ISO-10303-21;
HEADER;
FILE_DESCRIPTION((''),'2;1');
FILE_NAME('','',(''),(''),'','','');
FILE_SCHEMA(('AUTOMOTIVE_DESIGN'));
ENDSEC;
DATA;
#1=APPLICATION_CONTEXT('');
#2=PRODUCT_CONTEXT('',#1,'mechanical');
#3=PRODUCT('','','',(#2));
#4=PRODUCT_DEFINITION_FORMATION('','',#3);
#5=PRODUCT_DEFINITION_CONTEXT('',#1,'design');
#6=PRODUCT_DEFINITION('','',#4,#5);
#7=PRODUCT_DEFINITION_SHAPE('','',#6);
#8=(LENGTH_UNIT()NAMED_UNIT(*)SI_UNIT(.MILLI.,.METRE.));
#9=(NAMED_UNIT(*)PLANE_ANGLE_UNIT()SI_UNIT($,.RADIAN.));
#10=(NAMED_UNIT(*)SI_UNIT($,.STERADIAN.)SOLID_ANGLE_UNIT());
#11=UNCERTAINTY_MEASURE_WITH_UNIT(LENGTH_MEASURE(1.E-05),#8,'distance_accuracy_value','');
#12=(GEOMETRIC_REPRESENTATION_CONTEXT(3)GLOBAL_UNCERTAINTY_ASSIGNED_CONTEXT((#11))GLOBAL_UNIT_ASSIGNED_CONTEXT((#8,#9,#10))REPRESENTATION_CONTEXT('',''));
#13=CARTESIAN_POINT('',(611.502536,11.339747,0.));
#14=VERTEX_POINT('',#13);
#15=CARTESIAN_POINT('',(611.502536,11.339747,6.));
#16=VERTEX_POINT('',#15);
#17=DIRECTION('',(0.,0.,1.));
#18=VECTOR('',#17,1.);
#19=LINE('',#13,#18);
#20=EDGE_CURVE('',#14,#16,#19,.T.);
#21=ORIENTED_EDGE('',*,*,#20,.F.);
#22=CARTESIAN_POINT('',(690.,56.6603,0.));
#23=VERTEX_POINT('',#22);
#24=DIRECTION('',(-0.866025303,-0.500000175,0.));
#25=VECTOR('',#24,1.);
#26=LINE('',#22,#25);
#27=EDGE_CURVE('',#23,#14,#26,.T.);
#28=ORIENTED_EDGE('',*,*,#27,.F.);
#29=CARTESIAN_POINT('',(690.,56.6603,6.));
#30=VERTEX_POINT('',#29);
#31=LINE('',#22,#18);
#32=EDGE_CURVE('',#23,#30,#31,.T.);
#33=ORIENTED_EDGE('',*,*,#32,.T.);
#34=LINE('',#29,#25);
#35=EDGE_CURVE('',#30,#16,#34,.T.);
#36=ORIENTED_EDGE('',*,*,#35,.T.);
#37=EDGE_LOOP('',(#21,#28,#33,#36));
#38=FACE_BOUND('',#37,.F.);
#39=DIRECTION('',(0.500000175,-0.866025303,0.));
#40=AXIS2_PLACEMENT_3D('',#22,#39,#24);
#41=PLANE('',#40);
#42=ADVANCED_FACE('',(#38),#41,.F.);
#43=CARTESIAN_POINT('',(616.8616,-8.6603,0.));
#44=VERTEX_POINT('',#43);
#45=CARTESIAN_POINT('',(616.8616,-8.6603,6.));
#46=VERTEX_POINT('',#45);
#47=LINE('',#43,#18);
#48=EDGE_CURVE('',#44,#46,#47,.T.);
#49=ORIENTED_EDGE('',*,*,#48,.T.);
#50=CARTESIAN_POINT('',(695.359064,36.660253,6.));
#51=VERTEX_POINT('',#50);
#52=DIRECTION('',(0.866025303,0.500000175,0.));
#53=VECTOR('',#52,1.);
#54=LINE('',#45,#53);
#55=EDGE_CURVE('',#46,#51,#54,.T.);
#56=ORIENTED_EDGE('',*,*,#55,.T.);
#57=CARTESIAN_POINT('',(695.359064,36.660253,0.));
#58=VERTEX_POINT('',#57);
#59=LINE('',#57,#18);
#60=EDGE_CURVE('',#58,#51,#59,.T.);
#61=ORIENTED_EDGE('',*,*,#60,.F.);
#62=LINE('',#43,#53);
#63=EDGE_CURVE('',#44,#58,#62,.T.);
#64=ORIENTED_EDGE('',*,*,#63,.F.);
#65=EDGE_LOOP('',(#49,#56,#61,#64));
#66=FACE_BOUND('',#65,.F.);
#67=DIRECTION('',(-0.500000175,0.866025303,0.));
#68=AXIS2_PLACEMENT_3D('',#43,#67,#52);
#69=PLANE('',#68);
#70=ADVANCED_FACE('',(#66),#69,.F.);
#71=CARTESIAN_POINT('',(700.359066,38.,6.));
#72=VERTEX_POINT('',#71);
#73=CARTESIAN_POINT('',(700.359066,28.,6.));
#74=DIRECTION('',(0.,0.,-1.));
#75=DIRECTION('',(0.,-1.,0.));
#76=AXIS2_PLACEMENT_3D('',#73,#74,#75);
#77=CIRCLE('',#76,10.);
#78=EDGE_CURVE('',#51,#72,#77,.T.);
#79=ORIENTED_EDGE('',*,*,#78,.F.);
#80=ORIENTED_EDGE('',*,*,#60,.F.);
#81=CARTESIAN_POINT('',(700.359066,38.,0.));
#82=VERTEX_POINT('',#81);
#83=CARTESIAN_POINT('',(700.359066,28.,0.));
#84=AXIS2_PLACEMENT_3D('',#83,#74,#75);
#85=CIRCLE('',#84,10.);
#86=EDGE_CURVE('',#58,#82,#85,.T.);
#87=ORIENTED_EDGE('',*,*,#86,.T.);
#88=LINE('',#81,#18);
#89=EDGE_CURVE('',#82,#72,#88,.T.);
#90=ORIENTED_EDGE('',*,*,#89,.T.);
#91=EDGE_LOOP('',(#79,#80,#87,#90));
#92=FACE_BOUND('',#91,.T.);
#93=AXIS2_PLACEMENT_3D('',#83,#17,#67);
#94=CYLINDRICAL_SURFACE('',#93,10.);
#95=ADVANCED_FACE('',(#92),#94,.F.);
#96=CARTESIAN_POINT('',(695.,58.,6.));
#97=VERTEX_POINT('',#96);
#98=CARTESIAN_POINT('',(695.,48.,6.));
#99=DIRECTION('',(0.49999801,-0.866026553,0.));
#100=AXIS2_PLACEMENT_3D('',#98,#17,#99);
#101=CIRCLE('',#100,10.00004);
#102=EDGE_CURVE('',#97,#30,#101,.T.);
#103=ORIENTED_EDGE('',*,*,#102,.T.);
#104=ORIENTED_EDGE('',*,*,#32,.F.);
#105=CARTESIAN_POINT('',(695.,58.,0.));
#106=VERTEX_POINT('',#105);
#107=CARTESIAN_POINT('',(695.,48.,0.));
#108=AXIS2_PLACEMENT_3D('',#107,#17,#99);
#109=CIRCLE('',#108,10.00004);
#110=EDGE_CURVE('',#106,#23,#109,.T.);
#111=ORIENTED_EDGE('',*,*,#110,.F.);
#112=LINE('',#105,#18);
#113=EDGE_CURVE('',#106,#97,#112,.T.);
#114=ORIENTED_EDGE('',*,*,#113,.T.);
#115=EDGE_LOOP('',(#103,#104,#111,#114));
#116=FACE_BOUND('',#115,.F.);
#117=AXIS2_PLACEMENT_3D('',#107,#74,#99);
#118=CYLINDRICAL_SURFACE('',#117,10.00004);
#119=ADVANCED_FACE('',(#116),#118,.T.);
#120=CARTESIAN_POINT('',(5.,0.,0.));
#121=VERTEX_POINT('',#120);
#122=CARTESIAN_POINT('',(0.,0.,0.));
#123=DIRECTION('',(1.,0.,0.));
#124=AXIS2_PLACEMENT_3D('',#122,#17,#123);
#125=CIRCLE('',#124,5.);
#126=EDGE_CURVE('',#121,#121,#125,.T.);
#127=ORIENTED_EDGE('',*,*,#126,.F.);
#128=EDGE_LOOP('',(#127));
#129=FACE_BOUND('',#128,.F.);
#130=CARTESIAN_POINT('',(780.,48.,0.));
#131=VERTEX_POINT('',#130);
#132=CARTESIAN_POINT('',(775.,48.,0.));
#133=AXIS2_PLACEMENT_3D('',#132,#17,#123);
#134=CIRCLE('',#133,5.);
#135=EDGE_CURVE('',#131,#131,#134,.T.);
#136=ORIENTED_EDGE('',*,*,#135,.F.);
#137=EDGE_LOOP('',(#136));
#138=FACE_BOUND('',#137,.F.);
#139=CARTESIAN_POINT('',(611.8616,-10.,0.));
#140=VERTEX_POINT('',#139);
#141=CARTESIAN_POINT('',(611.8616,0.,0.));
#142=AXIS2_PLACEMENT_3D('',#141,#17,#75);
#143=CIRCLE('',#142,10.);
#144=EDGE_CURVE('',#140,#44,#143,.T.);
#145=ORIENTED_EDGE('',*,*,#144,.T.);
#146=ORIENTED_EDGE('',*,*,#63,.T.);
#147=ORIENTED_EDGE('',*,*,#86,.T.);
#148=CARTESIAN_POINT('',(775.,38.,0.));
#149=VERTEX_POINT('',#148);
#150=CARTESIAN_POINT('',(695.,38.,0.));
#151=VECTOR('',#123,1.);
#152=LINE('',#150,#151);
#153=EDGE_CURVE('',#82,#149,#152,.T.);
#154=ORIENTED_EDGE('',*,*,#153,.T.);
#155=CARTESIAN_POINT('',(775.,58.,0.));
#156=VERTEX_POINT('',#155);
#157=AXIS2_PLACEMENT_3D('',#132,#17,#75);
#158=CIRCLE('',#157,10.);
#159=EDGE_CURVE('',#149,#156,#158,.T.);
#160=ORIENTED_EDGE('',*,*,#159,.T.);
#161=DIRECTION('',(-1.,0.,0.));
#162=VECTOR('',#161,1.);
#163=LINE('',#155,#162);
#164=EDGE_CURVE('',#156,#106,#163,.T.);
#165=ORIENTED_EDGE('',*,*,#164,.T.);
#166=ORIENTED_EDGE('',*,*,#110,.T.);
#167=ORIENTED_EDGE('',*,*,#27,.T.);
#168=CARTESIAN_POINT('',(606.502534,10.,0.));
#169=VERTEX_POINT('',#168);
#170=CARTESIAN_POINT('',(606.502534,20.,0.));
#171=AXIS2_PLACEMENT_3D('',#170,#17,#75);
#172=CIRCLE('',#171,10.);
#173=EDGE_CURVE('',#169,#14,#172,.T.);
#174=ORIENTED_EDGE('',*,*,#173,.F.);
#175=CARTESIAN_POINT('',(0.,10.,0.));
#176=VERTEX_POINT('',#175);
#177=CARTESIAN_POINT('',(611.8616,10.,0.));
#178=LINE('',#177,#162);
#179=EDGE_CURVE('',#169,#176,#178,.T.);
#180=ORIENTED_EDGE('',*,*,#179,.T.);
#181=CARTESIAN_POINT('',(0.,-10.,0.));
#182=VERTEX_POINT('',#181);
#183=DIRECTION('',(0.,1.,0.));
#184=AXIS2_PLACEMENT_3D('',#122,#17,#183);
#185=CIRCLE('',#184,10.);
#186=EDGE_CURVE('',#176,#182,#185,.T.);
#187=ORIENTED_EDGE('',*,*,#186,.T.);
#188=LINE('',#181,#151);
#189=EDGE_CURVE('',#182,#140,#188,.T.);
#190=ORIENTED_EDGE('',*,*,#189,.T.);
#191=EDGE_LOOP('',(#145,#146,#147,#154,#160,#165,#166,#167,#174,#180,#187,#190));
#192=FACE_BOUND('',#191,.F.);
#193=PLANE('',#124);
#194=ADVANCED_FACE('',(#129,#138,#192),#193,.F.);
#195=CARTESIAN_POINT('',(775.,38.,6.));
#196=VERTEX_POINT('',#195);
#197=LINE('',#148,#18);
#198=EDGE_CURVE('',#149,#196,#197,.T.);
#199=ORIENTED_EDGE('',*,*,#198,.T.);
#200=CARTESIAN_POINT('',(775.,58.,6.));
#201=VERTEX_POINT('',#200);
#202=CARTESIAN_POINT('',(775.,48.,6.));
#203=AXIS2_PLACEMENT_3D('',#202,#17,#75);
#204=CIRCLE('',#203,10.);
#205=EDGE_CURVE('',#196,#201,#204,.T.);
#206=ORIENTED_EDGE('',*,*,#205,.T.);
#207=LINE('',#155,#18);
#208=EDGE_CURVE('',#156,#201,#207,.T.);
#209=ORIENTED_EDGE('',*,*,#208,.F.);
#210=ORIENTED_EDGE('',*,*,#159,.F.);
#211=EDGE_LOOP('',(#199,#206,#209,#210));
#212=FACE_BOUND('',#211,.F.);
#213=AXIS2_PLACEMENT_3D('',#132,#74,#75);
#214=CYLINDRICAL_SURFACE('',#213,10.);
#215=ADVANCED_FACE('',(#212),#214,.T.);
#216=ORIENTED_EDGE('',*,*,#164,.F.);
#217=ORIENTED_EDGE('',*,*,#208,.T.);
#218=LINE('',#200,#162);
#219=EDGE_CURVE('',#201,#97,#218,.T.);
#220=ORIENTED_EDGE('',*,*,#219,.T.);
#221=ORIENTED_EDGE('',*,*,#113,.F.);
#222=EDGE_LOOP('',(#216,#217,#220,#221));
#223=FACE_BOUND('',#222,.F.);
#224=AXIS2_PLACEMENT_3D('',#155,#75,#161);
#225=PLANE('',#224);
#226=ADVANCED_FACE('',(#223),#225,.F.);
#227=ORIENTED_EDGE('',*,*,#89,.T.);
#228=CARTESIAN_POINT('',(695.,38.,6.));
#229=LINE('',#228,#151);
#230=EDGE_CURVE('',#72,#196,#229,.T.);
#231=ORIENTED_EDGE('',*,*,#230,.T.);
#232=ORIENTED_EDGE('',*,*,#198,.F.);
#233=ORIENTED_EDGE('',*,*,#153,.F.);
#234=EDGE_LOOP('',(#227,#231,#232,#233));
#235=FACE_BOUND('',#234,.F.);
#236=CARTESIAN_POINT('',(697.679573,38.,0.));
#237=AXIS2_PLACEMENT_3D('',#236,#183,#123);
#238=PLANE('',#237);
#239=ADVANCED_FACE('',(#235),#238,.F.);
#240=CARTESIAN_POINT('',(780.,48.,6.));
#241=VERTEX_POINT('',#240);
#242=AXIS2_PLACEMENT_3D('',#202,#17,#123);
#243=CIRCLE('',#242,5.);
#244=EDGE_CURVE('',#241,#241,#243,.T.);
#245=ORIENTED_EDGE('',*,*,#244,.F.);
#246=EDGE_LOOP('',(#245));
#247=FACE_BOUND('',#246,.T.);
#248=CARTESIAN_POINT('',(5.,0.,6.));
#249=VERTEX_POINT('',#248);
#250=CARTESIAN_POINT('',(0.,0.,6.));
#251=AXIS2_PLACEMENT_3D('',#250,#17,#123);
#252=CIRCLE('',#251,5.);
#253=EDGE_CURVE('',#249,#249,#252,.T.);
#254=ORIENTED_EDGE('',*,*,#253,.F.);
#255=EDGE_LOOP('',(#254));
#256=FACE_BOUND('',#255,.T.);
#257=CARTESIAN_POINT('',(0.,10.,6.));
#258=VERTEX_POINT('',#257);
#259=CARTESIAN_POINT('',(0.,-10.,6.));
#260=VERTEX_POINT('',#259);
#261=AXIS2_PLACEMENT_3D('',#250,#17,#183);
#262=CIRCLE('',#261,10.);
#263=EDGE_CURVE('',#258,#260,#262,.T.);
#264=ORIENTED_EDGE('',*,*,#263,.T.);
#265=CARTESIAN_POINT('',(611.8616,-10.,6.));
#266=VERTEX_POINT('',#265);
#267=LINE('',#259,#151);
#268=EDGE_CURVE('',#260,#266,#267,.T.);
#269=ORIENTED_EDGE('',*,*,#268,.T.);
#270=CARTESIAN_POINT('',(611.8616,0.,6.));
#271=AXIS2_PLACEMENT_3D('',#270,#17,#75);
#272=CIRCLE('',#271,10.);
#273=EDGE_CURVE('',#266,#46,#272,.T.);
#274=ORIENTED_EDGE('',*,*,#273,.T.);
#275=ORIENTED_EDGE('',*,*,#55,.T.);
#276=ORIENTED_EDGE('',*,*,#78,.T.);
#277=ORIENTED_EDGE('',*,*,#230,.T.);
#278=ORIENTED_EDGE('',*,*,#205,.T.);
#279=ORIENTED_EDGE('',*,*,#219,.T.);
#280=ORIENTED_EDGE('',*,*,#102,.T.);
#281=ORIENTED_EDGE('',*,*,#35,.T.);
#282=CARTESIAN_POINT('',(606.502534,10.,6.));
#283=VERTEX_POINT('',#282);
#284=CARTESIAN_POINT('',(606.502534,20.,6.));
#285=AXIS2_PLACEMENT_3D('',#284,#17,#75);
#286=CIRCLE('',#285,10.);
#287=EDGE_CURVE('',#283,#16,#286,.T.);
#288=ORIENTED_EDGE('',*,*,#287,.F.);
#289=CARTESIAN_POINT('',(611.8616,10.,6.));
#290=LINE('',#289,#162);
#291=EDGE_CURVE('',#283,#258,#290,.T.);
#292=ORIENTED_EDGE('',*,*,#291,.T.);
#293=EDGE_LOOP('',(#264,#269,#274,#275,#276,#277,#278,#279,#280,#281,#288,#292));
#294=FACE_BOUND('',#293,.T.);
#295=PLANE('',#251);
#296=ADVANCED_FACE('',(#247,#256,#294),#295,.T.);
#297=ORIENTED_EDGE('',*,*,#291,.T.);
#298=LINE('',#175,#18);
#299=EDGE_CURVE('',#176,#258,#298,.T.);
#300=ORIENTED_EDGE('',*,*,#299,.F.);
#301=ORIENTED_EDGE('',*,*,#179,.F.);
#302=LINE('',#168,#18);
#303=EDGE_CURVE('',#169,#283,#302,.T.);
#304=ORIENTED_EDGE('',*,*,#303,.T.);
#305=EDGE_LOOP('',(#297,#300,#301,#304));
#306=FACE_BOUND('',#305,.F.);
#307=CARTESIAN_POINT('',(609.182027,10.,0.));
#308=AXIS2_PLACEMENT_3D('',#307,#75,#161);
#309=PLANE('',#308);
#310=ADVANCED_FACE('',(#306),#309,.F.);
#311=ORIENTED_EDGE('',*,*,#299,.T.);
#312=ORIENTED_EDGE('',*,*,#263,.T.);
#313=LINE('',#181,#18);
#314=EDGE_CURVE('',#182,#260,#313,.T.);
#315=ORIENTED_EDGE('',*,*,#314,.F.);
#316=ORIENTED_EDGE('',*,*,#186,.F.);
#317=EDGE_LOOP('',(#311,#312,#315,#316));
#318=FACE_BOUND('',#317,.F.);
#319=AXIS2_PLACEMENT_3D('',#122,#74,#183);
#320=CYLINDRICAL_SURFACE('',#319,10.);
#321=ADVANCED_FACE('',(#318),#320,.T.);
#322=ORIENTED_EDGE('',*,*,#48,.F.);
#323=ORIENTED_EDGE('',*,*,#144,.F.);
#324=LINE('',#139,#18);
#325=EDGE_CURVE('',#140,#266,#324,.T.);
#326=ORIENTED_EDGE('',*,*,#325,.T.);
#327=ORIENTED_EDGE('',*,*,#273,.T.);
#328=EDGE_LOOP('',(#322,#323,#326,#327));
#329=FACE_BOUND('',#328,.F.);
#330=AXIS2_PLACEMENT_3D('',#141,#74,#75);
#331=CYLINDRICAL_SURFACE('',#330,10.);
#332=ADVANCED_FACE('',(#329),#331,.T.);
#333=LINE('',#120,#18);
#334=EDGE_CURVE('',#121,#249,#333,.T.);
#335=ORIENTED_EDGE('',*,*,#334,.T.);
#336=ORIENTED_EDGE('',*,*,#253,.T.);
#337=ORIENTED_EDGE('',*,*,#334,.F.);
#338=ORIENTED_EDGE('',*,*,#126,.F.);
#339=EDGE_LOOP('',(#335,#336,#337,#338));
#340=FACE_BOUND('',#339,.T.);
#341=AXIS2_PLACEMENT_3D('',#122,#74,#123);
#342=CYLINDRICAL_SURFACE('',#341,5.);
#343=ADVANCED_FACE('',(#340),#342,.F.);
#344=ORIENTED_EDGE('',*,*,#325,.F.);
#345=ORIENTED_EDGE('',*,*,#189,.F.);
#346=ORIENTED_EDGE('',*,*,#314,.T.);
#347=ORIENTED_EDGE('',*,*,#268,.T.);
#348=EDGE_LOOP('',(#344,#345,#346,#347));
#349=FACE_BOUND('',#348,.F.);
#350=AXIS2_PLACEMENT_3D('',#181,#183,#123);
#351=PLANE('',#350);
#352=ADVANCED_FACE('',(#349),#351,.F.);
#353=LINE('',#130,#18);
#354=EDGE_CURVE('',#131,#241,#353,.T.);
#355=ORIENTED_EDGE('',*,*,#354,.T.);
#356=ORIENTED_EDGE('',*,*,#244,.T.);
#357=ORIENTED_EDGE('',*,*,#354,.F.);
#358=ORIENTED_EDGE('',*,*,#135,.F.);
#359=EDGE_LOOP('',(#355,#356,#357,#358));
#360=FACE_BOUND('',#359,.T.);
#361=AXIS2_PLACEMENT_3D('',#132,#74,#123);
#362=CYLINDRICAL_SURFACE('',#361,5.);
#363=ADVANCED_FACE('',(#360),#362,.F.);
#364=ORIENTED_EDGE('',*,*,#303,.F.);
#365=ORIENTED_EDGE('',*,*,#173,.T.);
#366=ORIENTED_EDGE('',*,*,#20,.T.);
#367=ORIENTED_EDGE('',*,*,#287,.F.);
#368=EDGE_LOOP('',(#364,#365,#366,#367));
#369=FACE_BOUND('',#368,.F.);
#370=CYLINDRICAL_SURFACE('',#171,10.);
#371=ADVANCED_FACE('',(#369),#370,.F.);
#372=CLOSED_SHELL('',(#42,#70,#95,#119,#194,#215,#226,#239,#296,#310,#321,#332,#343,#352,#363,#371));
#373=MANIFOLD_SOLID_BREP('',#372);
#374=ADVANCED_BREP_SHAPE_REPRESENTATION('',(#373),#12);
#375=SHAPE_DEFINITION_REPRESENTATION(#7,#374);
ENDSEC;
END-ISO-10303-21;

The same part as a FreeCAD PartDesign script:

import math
import FreeCAD as App
import Part
import Sketcher
from FreeCAD import Vector
Q = App.Units.Quantity


def edges_at(feature, points):
    """Names of the edges that pass closest to the given points."""
    edges = feature.Shape.Edges
    near = lambda p: min(range(len(edges)), key=lambda i: edges[i].distToShape(Part.Vertex(*p))[0])
    return sorted({f"Edge{near(p) + 1}" for p in points})

doc = App.newDocument("Part")
params = doc.addObject("Spreadsheet::Sheet", "Params")
for row, (alias, value) in enumerate([
    ("sketch1_diameter", "10 mm"),
    ("sketch1_radius", "10 mm"),
    ("sketch1_width", "80 mm"),
    ("pad1_length", "6 mm"),
    ("fillet_radius", "10 mm"),
], start=1):
    params.set(f"A{row}", alias)
    params.set(f"B{row}", "=" + value)
    params.setAlias(f"B{row}", alias)

body = doc.addObject("PartDesign::Body", "Body")

sketch1 = body.newObject("Sketcher::SketchObject", "Sketch")
sketch1.AttachmentSupport = (doc.getObject("XY_Plane"), [""])
sketch1.MapMode = "FlatFace"
sketch1.addGeometry([
    Part.ArcOfCircle(Part.Circle(Vector(0, 0, 0), Vector(0, 0, 1), 10), math.radians(90), math.radians(270)),
    Part.LineSegment(Vector(0, -10, 0), Vector(612, -10, 0)),
    Part.ArcOfCircle(Part.Circle(Vector(612, 0, 0), Vector(0, 0, 1), 10), math.radians(-90), math.radians(-60)),
    Part.LineSegment(Vector(617, -9, 0), Vector(698, 38, 0)),
    Part.LineSegment(Vector(698, 38, 0), Vector(775, 38, 0)),
    Part.ArcOfCircle(Part.Circle(Vector(775, 48, 0), Vector(0, 0, 1), 10), math.radians(-90), math.radians(90)),
    Part.LineSegment(Vector(775, 58, 0), Vector(695, 58, 0)),
    Part.ArcOfCircle(Part.Circle(Vector(695, 48, 0), Vector(0, 0, 1), 10), math.radians(90), math.radians(120)),
    Part.LineSegment(Vector(690, 57, 0), Vector(609, 10, 0)),
    Part.LineSegment(Vector(609, 10, 0), Vector(0, 10, 0)),
    Part.Circle(Vector(0, 0, 0), Vector(0, 0, 1), 5),
    Part.Circle(Vector(775, 48, 0), Vector(0, 0, 1), 5),
], False)
sketch1.addConstraint([
    Sketcher.Constraint("Tangent", 0, 2, 1, 1),
    Sketcher.Constraint("Tangent", 1, 2, 2, 1),
    Sketcher.Constraint("Tangent", 2, 2, 3, 1),
    Sketcher.Constraint("Coincident", 3, 2, 4, 1),
    Sketcher.Constraint("Tangent", 4, 2, 5, 1),
    Sketcher.Constraint("Tangent", 5, 2, 6, 1),
    Sketcher.Constraint("Tangent", 6, 2, 7, 1),
    Sketcher.Constraint("Tangent", 7, 2, 8, 1),
    Sketcher.Constraint("Coincident", 8, 2, 9, 1),
    Sketcher.Constraint("Tangent", 9, 2, 0, 1),
    Sketcher.Constraint("Horizontal", 1),
    Sketcher.Constraint("Horizontal", 4),
    Sketcher.Constraint("Horizontal", 6),
    Sketcher.Constraint("Horizontal", 9),
    Sketcher.Constraint("Coincident", 0, 3, -1, 1),
    Sketcher.Constraint("Coincident", 10, 3, -1, 1),
    Sketcher.Constraint("Coincident", 11, 3, 5, 3),
    Sketcher.Constraint("Equal", 0, 2),
    Sketcher.Constraint("Equal", 2, 5),
    Sketcher.Constraint("Equal", 5, 7),
    Sketcher.Constraint("Equal", 10, 11),
    Sketcher.Constraint("Parallel", 3, 8),
    Sketcher.Constraint("Diameter", 10, Q("10 mm")),
    Sketcher.Constraint("Radius", 0, Q("10 mm")),
    Sketcher.Constraint("DistanceX", 6, 2, 6, 1, Q("80 mm")),
    Sketcher.Constraint("Angle", 3, Q("30 deg")),
    Sketcher.Constraint("DistanceX", -1, 1, 5, 3, Q("775 mm")),
    Sketcher.Constraint("DistanceY", -1, 1, 5, 3, Q("48 mm")),
    Sketcher.Constraint("DistanceX", 1, 1, 1, 2, Q("611.8616 mm")),
])
sketch1.setExpression("Constraints[22]", "Params.sketch1_diameter")
sketch1.setExpression("Constraints[23]", "Params.sketch1_radius")
sketch1.setExpression("Constraints[24]", "Params.sketch1_width")
pad1 = body.newObject("PartDesign::Pad", "Pad")
pad1.Profile = sketch1
pad1.setExpression("Length", "Params.pad1_length")
doc.recompute()

fillet = body.newObject("PartDesign::Fillet", "Fillet")
fillet.Base = (pad1, edges_at(pad1, [(697.679, 38, 3), (609.182, 10, 3)]))
fillet.setExpression("Radius", "Params.fillet_radius")

doc.recompute()
